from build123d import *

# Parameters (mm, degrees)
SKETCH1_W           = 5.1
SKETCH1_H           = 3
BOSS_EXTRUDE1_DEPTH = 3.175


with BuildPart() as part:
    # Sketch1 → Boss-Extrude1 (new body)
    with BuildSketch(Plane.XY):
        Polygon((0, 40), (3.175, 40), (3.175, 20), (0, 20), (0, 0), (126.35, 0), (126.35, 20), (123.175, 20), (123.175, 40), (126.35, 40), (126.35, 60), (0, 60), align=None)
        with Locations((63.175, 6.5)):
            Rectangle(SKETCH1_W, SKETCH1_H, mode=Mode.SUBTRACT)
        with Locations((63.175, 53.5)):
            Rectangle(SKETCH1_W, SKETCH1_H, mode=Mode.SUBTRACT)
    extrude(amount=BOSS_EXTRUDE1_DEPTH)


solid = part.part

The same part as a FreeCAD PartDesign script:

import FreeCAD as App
import Part
import Sketcher
from FreeCAD import Vector
Q = App.Units.Quantity


def add_polygon(sketch, points):
    """Adds a closed chain of lines whose ends are joined by coincident constraints."""
    first, n = sketch.GeometryCount, len(points)
    for a, b in zip(points, points[1:] + points[:1]):
        sketch.addGeometry(Part.LineSegment(App.Vector(*a, 0), App.Vector(*b, 0)), False)
    for i in range(n):
        sketch.addConstraint(Sketcher.Constraint("Coincident", first + i, 2, first + (i + 1) % n, 1))

doc = App.newDocument("Part")
params = doc.addObject("Spreadsheet::Sheet", "Params")
for row, (alias, value) in enumerate([
    ("sketch1_height", "20 mm"),
    ("sketch1_height2", "3 mm"),
    ("sketch1_width", "5.1 mm"),
    ("sketch1_width2", "126.35 mm"),
    ("pad1_length", "3.175 mm"),
], start=1):
    params.set(f"A{row}", alias)
    params.set(f"B{row}", "=" + value)
    params.setAlias(f"B{row}", alias)

body = doc.addObject("PartDesign::Body", "Body")

# Sketch on XY plane
sketch1 = body.newObject("Sketcher::SketchObject", "Sketch")
sketch1.AttachmentSupport = (doc.getObject("XY_Plane"), [""])
sketch1.MapMode = "FlatFace"
add_polygon(sketch1, [(0, 40), (3.175, 40), (3.175, 20), (0, 20), (0, 0), (126.35, 0), (126.35, 20), (123.175, 20), (123.175, 40), (126.35, 40), (126.35, 60), (0, 60)])  # lines 0-11
add_polygon(sketch1, [(65.725, 5), (60.625, 5), (60.625, 8), (65.725, 8)])  # lines 12-15
add_polygon(sketch1, [(65.725, 52), (60.625, 52), (60.625, 55), (65.725, 55)])  # lines 16-19
sketch1.addConstraint(Sketcher.Constraint("Horizontal", 0))
sketch1.addConstraint(Sketcher.Constraint("Vertical", 1))
sketch1.addConstraint(Sketcher.Constraint("Horizontal", 2))
sketch1.addConstraint(Sketcher.Constraint("Vertical", 3))
sketch1.addConstraint(Sketcher.Constraint("Horizontal", 4))
sketch1.addConstraint(Sketcher.Constraint("Vertical", 5))
sketch1.addConstraint(Sketcher.Constraint("Horizontal", 6))
sketch1.addConstraint(Sketcher.Constraint("Vertical", 7))
sketch1.addConstraint(Sketcher.Constraint("Horizontal", 8))
sketch1.addConstraint(Sketcher.Constraint("Vertical", 9))
sketch1.addConstraint(Sketcher.Constraint("Horizontal", 10))
sketch1.addConstraint(Sketcher.Constraint("Vertical", 11))
sketch1.addConstraint(Sketcher.Constraint("Horizontal", 12))
sketch1.addConstraint(Sketcher.Constraint("Vertical", 13))
sketch1.addConstraint(Sketcher.Constraint("Horizontal", 14))
sketch1.addConstraint(Sketcher.Constraint("Vertical", 15))
sketch1.addConstraint(Sketcher.Constraint("Horizontal", 16))
sketch1.addConstraint(Sketcher.Constraint("Vertical", 17))
sketch1.addConstraint(Sketcher.Constraint("Horizontal", 18))
sketch1.addConstraint(Sketcher.Constraint("Vertical", 19))
sketch1.addConstraint(Sketcher.Constraint("Coincident", 3, 2, -1, 1))
sketch1.addConstraint(Sketcher.Constraint("PointOnObject", 10, 2, -2))
sketch1.addConstraint(Sketcher.Constraint("Horizontal", 2, 2, 5, 2))
sketch1.addConstraint(Sketcher.Constraint("Horizontal", 0, 2, 7, 2))
sketch1.addConstraint(Sketcher.Constraint("Vertical", 5, 2, 8, 2))
sketch1.addConstraint(Sketcher.Constraint("Vertical", 13, 2, 16, 2))
sketch1.addConstraint(Sketcher.Constraint("Vertical", 15, 2, 18, 2))
sketch1.addConstraint(Sketcher.Constraint("Equal", 2, 6))
sketch1.addConstraint(Sketcher.Constraint("Equal", 1, 3))
sketch1.addConstraint(Sketcher.Constraint("Equal", 7, 9))
sketch1.addConstraint(Sketcher.Constraint("Equal", 15, 17))
sketch1.addConstraint(Sketcher.Constraint("DistanceY", 1, 2, 1, 1, Q("20 mm")))
sketch1.addConstraint(Sketcher.Constraint("DistanceY", 13, 1, 13, 2, Q("3 mm")))
sketch1.addConstraint(Sketcher.Constraint("DistanceX", 12, 2, 12, 1, Q("5.1 mm")))
sketch1.addConstraint(Sketcher.Constraint("DistanceY", -1, 1, 12, 2, Q("5 mm")))
sketch1.addConstraint(Sketcher.Constraint("DistanceY", -1, 1, 16, 2, Q("52 mm")))
sketch1.addConstraint(Sketcher.Constraint("DistanceX", 1, 2, 6, 2, Q("120 mm")))
sketch1.addConstraint(Sketcher.Constraint("DistanceX", 4, 1, 4, 2, Q("126.35 mm")))
sketch1.addConstraint(Sketcher.Constraint("DistanceX", 1, 2, 12, 2, Q("57.45 mm")))
sketch1.setExpression("Constraints[51]", "Params.sketch1_height")
sketch1.setExpression("Constraints[52]", "Params.sketch1_height2")
sketch1.setExpression("Constraints[53]", "Params.sketch1_width")
sketch1.setExpression("Constraints[57]", "Params.sketch1_width2")
pad1 = body.newObject("PartDesign::Pad", "Pad")
pad1.Profile = sketch1
pad1.setExpression("Length", "Params.pad1_length")

doc.recompute()
